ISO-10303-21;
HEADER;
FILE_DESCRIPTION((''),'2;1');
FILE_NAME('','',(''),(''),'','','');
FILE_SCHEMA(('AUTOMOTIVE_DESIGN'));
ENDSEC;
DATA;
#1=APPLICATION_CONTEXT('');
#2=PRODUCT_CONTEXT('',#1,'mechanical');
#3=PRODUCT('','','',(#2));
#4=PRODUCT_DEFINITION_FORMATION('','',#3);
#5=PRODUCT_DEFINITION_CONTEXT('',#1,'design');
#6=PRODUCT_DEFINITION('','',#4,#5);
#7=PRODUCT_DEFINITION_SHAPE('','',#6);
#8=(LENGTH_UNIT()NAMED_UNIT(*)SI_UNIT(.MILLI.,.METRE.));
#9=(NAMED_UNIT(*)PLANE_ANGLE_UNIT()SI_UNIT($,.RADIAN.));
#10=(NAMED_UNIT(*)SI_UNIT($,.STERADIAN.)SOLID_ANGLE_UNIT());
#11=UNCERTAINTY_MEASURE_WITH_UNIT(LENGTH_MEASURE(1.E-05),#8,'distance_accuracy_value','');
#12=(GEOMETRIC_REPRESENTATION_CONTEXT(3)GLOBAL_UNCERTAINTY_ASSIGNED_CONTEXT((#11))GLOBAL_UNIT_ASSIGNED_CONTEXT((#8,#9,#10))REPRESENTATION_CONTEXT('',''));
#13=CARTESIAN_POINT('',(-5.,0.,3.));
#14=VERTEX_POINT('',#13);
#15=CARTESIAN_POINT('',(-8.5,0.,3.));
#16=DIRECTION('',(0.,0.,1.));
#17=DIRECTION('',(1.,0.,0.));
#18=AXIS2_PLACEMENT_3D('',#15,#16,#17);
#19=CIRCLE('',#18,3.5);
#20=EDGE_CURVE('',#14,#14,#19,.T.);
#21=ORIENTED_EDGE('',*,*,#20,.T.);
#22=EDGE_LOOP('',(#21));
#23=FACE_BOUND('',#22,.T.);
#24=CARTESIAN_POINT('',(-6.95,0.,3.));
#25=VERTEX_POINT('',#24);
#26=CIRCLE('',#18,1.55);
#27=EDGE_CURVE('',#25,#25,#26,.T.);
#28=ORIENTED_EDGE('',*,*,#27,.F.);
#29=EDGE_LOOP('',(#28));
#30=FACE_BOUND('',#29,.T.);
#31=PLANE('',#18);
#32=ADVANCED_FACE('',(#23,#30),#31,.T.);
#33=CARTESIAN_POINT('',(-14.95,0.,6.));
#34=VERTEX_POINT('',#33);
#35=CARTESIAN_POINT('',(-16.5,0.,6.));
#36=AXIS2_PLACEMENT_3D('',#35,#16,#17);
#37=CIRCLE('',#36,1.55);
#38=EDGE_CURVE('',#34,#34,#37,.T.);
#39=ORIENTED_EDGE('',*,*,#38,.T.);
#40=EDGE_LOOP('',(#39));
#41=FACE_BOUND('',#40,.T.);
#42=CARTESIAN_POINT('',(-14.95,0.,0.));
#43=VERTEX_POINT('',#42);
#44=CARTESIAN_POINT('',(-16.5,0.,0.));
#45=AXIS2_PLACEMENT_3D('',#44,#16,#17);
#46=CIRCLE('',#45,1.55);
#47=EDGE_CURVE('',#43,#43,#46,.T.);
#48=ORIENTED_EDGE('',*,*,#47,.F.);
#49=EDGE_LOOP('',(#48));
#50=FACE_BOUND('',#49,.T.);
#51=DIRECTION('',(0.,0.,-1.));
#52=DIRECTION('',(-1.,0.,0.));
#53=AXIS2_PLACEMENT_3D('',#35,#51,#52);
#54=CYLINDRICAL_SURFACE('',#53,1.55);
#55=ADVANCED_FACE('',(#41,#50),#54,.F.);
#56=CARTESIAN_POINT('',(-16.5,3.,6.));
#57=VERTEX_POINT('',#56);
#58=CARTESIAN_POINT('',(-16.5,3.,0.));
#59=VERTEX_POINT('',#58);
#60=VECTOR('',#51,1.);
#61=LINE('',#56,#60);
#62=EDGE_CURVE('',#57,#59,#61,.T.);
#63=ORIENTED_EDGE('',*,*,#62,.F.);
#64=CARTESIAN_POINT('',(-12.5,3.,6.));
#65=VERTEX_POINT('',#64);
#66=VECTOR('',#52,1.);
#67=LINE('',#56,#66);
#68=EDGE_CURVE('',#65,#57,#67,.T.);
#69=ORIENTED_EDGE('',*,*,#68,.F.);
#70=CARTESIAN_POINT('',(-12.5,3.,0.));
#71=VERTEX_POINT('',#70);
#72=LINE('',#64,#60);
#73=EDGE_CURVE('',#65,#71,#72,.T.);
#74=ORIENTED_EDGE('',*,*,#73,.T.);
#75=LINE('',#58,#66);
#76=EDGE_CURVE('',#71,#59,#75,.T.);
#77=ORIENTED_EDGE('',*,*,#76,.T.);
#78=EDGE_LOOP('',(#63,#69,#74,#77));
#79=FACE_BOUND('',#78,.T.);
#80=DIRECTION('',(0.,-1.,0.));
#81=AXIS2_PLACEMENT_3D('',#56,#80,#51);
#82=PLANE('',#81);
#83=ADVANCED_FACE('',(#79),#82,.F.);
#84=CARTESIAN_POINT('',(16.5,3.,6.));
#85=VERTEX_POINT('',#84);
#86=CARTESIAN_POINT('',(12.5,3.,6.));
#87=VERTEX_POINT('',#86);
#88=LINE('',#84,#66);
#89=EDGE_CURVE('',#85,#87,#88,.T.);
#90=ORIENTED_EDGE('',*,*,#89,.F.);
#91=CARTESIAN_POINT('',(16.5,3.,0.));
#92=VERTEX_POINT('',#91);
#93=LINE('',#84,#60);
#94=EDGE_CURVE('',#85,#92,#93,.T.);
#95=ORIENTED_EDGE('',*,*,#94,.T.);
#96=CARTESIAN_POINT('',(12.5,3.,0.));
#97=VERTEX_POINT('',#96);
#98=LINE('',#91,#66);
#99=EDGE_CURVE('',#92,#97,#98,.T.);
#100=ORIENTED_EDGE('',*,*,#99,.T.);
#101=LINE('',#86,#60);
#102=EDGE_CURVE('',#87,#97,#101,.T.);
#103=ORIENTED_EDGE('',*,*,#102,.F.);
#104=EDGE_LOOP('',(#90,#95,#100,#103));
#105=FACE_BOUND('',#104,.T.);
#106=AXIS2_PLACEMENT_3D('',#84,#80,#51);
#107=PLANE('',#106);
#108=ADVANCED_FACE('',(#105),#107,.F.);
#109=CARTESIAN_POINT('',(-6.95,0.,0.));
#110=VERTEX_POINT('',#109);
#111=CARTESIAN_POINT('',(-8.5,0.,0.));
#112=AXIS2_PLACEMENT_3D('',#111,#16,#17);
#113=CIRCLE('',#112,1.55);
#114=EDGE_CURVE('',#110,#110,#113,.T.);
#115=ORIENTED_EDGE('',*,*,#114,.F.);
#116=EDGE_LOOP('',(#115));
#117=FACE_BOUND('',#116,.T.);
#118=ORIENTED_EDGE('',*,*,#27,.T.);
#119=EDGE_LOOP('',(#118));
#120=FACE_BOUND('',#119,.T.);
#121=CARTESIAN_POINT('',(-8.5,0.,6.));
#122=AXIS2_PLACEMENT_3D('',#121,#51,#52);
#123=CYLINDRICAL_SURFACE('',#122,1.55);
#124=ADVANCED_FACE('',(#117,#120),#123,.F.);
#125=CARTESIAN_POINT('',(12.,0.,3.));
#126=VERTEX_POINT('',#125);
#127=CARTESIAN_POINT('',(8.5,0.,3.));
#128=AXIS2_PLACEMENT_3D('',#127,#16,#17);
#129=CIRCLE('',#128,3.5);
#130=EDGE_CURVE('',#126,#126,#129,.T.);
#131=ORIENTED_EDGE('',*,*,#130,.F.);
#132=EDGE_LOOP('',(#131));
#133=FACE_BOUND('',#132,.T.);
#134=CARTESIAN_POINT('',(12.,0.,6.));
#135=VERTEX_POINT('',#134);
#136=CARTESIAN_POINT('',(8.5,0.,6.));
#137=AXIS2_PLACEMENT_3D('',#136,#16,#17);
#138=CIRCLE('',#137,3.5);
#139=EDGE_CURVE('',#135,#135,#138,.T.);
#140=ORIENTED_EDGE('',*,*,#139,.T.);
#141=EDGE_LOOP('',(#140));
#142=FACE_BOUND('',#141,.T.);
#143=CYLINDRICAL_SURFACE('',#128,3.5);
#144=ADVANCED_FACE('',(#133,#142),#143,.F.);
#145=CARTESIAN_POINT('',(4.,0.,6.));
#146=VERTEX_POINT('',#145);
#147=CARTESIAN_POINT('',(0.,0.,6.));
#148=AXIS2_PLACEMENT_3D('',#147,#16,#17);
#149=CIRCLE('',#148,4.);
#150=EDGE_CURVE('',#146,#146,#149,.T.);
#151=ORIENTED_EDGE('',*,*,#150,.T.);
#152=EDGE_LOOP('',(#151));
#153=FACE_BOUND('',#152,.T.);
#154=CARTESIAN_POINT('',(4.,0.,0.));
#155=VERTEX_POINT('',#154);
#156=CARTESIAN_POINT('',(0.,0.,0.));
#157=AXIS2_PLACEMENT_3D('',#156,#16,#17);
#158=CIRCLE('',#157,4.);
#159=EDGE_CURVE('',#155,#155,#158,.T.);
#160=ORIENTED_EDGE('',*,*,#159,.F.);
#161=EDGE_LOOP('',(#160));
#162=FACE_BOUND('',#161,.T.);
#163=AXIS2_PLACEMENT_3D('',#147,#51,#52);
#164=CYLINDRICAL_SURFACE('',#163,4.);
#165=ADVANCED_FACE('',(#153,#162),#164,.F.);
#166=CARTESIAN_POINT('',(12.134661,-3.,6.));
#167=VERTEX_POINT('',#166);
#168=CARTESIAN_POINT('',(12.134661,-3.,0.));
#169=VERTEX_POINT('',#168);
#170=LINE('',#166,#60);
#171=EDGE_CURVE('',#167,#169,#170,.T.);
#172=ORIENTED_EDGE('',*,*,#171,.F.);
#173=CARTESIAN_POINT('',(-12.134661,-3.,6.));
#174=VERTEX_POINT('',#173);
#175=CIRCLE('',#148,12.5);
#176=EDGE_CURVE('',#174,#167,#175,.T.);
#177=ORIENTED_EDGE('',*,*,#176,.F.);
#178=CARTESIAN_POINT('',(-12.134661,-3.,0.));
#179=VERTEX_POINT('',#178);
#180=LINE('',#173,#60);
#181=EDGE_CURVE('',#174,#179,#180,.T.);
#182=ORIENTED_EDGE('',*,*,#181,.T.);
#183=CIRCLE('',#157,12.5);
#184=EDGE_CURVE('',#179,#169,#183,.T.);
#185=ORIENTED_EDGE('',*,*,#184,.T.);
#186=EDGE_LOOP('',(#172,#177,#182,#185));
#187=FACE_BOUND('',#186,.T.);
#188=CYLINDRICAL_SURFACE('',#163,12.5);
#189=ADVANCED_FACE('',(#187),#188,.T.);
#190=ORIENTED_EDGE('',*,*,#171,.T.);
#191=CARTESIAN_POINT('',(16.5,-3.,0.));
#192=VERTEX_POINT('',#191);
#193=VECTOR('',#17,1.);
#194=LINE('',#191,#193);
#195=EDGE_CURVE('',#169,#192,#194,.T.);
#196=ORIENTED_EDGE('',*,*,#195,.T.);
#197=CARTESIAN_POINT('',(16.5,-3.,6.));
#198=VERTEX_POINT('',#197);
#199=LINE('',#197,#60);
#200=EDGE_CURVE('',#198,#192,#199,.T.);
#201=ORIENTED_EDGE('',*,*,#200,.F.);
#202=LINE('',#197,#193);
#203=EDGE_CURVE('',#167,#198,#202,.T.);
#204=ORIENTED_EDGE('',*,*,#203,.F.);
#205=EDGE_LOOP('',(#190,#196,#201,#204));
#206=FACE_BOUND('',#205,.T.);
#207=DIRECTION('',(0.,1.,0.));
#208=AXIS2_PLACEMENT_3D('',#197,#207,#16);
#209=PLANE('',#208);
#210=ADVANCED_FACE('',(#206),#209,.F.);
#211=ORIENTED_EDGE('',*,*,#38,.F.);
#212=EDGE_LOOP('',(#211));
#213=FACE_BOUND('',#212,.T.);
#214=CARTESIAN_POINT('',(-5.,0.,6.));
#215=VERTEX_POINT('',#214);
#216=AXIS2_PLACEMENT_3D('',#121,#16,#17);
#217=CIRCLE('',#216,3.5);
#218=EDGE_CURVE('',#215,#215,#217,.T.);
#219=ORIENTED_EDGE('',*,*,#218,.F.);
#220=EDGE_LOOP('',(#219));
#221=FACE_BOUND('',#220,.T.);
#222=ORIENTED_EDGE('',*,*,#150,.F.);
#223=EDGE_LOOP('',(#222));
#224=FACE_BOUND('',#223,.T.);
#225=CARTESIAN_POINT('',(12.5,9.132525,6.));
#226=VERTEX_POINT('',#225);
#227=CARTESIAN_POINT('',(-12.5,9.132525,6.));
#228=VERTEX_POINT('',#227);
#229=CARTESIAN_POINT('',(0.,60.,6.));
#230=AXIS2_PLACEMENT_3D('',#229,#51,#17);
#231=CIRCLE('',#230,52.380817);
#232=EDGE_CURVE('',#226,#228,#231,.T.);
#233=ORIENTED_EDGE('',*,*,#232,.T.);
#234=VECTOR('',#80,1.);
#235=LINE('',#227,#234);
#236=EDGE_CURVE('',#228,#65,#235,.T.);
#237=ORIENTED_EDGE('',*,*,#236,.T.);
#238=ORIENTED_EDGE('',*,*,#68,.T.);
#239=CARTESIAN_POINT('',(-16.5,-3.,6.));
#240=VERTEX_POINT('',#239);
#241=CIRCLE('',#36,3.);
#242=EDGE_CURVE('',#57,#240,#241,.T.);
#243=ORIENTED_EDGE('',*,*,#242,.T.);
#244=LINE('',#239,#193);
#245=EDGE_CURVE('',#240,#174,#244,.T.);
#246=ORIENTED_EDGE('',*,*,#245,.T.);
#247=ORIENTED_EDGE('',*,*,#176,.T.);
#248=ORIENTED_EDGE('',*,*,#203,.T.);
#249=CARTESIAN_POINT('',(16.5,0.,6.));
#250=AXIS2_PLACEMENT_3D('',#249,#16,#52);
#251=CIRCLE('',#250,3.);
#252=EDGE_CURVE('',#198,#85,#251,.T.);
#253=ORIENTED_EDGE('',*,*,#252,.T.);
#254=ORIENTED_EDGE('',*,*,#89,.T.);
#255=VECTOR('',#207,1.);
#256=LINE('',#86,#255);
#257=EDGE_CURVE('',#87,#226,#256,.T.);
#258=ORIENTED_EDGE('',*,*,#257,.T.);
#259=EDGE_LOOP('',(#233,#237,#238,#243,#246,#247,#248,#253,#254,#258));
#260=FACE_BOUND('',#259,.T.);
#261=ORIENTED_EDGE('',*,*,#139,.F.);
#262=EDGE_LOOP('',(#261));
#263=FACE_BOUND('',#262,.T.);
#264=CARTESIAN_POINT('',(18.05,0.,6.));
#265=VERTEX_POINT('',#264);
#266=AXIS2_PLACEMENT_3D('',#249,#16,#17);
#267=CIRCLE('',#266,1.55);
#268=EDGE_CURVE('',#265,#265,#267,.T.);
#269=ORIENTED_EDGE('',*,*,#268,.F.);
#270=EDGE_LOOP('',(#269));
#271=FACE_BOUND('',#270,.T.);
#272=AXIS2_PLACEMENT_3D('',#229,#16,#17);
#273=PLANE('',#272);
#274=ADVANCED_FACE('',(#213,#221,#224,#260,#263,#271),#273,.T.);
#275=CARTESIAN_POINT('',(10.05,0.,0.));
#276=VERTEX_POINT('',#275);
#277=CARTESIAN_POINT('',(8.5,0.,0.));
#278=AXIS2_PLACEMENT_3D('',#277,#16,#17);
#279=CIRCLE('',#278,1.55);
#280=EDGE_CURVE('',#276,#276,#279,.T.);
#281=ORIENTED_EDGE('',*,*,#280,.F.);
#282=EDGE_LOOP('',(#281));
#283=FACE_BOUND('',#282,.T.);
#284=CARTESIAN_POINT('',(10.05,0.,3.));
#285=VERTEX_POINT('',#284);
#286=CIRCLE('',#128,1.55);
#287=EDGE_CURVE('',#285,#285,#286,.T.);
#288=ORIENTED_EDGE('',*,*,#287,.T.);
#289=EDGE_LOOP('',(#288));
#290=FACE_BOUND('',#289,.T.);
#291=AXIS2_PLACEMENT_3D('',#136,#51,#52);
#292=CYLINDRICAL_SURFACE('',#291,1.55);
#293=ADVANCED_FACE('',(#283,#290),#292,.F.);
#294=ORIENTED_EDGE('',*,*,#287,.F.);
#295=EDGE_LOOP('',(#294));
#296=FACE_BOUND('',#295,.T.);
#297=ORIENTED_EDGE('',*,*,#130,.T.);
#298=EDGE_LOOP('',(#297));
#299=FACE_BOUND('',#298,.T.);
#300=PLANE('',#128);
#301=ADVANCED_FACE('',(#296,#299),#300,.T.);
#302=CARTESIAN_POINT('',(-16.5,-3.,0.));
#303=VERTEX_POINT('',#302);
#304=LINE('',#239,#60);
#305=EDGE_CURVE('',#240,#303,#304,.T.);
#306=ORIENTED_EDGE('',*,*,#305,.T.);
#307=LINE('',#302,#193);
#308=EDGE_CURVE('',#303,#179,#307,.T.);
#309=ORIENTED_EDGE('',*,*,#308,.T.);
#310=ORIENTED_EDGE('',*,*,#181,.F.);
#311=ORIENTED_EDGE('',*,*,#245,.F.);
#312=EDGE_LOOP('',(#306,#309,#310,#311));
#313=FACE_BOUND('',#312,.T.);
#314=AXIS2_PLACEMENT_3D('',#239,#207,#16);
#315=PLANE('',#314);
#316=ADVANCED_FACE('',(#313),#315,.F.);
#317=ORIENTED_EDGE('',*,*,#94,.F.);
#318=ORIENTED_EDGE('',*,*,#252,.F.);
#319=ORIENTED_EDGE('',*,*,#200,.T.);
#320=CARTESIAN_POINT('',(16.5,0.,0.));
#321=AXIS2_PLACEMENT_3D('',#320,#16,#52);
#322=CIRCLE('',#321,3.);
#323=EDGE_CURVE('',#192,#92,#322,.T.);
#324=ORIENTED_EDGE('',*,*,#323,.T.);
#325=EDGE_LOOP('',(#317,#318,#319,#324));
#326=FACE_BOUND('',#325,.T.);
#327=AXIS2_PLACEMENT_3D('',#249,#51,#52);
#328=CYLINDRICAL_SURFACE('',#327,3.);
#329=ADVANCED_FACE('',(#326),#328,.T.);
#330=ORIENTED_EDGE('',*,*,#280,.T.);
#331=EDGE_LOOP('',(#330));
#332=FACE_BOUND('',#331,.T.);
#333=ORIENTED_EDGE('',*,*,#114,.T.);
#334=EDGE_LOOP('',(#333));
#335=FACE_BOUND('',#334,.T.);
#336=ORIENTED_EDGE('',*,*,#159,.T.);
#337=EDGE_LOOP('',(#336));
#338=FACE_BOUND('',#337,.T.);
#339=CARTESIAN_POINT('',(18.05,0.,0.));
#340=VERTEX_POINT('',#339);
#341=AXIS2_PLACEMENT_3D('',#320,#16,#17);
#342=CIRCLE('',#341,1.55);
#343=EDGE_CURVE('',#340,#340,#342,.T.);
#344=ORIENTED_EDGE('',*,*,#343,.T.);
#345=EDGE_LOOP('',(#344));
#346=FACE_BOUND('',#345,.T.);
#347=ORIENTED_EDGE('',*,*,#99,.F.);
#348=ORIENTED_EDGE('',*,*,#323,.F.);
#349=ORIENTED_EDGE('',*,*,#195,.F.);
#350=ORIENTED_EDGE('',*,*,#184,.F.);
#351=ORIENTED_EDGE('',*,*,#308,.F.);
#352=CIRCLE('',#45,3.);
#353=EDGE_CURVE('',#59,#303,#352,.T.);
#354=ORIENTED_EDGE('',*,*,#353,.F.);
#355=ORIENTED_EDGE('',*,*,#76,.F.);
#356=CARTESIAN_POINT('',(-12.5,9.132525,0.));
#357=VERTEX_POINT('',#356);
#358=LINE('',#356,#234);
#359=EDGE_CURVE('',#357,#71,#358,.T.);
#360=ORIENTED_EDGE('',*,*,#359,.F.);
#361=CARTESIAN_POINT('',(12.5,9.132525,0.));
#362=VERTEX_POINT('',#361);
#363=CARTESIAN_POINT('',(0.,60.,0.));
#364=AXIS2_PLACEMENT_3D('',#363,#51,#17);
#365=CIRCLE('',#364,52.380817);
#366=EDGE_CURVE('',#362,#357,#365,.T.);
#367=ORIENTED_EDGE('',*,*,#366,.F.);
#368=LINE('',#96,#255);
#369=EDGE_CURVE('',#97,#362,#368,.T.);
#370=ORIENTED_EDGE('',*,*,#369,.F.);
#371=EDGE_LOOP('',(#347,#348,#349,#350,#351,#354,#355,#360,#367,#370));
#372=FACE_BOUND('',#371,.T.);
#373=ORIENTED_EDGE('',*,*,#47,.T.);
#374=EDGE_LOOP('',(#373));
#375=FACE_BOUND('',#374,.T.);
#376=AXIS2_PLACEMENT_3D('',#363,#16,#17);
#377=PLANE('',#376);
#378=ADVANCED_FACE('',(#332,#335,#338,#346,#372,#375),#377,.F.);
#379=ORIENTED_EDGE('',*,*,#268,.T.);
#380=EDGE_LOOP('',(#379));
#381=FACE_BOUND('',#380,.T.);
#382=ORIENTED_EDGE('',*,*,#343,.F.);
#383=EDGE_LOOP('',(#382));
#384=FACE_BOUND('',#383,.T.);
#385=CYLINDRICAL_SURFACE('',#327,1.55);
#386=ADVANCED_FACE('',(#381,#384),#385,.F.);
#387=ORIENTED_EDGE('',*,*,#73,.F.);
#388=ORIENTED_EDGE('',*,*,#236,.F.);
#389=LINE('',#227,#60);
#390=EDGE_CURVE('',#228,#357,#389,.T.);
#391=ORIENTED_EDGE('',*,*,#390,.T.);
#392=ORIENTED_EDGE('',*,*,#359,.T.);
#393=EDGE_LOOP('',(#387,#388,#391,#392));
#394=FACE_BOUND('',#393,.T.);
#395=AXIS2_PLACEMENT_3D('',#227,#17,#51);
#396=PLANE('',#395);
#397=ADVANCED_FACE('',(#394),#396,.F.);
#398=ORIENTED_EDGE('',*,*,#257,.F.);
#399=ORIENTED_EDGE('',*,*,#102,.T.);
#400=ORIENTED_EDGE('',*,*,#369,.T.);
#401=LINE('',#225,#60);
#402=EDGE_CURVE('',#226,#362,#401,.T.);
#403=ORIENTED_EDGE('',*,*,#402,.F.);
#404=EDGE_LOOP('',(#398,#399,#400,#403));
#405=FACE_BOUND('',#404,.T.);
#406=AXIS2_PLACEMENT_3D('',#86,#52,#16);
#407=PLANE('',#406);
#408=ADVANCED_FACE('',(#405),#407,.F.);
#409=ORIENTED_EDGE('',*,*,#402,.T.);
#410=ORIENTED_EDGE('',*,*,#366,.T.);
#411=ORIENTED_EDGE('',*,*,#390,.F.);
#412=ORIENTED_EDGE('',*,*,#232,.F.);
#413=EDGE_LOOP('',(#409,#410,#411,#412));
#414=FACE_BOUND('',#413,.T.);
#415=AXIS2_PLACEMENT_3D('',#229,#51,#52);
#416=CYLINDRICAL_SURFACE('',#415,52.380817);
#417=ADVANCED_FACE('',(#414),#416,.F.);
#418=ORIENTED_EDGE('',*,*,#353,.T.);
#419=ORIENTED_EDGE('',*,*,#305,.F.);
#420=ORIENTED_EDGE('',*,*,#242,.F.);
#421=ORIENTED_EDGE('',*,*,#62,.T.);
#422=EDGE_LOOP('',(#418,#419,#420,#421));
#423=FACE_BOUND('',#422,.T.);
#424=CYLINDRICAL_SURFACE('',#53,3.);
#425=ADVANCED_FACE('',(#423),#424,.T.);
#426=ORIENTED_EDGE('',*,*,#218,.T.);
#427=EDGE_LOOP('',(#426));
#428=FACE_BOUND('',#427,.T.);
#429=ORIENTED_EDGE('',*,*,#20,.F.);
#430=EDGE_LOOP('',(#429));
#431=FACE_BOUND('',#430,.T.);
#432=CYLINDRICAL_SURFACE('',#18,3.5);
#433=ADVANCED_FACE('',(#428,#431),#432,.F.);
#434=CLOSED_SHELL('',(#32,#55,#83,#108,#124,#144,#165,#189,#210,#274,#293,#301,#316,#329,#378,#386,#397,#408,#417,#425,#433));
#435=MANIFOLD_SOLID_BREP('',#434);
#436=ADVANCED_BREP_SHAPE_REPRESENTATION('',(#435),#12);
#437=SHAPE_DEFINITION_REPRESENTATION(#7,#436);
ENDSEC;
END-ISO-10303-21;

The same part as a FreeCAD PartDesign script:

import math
import FreeCAD as App
import Part
import Sketcher
Q = App.Units.Quantity

doc = App.newDocument("Part")
body = doc.addObject("PartDesign::Body", "Body")

# Sketch on XY plane
sketch1 = doc.addObject("Sketcher::SketchObject", "Sketch")
body.addObject(sketch1)
sketch1.AttachmentSupport = (doc.XY_Plane, [""])
sketch1.MapMode = "FlatFace"
sketch1.addGeometry(Part.LineSegment(App.Vector(-12.5, 3, 0), App.Vector(-16.5, 3, 0)), False)
sketch1.addGeometry(Part.ArcOfCircle(Part.Circle(App.Vector(-16.5, 0, 0), App.Vector(0, 0, 1), 3), math.radians(90), math.radians(270)), False)
sketch1.addGeometry(Part.LineSegment(App.Vector(-16.5, -3, 0), App.Vector(-12.1, -3, 0)), False)
sketch1.addGeometry(Part.ArcOfCircle(Part.Circle(App.Vector(0, 0, 0), App.Vector(0, 0, 1), 12.5), math.radians(-166), math.radians(-14)), False)
sketch1.addGeometry(Part.LineSegment(App.Vector(12.1, -3, 0), App.Vector(16.5, -3, 0)), False)
sketch1.addGeometry(Part.ArcOfCircle(Part.Circle(App.Vector(16.5, 0, 0), App.Vector(0, 0, 1), 3), math.radians(-90), math.radians(90)), False)
sketch1.addGeometry(Part.LineSegment(App.Vector(16.5, 3, 0), App.Vector(12.5, 3, 0)), False)
sketch1.addGeometry(Part.LineSegment(App.Vector(12.5, 3, 0), App.Vector(12.5, 9.1, 0)), False)
sketch1.addGeometry(Part.ArcOfCircle(Part.Circle(App.Vector(0, 60, 0), App.Vector(0, 0, 1), 52.4), math.radians(-104), math.radians(-76)), False)
sketch1.addGeometry(Part.LineSegment(App.Vector(-12.5, 9.1, 0), App.Vector(-12.5, 3, 0)), False)
sketch1.addGeometry(Part.Circle(App.Vector(16.5, 0, 0), App.Vector(0, 0, 1), 1.6), False)
sketch1.addGeometry(Part.Circle(App.Vector(8.5, 0, 0), App.Vector(0, 0, 1), 1.6), False)
sketch1.addGeometry(Part.Circle(App.Vector(0, 0, 0), App.Vector(0, 0, 1), 4), False)
sketch1.addGeometry(Part.Circle(App.Vector(-8.5, 0, 0), App.Vector(0, 0, 1), 1.6), False)
sketch1.addGeometry(Part.Circle(App.Vector(-16.5, 0, 0), App.Vector(0, 0, 1), 1.6), False)
sketch1.addConstraint(Sketcher.Constraint("Tangent", 0, 2, 1, 1))
sketch1.addConstraint(Sketcher.Constraint("Tangent", 1, 2, 2, 1))
sketch1.addConstraint(Sketcher.Constraint("Coincident", 2, 2, 3, 1))
sketch1.addConstraint(Sketcher.Constraint("Coincident", 3, 2, 4, 1))
sketch1.addConstraint(Sketcher.Constraint("Tangent", 4, 2, 5, 1))
sketch1.addConstraint(Sketcher.Constraint("Tangent", 5, 2, 6, 1))
sketch1.addConstraint(Sketcher.Constraint("Coincident", 6, 2, 7, 1))
sketch1.addConstraint(Sketcher.Constraint("Coincident", 7, 2, 8, 2))
sketch1.addConstraint(Sketcher.Constraint("Coincident", 8, 1, 9, 1))
sketch1.addConstraint(Sketcher.Constraint("Coincident", 9, 2, 0, 1))
sketch1.addConstraint(Sketcher.Constraint("Horizontal", 0))
sketch1.addConstraint(Sketcher.Constraint("Horizontal", 2))
sketch1.addConstraint(Sketcher.Constraint("Horizontal", 4))
sketch1.addConstraint(Sketcher.Constraint("Horizontal", 6))
sketch1.addConstraint(Sketcher.Constraint("Vertical", 7))
sketch1.addConstraint(Sketcher.Constraint("Vertical", 9))
sketch1.addConstraint(Sketcher.Constraint("Coincident", 3, 3, -1, 1))
sketch1.addConstraint(Sketcher.Constraint("Coincident", 12, 3, -1, 1))
sketch1.addConstraint(Sketcher.Constraint("Coincident", 10, 3, 5, 3))
sketch1.addConstraint(Sketcher.Constraint("Coincident", 14, 3, 1, 3))
sketch1.addConstraint(Sketcher.Constraint("Equal", 1, 5))
sketch1.addConstraint(Sketcher.Constraint("Equal", 10, 11))
sketch1.addConstraint(Sketcher.Constraint("Equal", 11, 13))
sketch1.addConstraint(Sketcher.Constraint("Equal", 13, 14))
sketch1.addConstraint(Sketcher.Constraint("Symmetric", 1, 3, 5, 3, -1, 1))
sketch1.addConstraint(Sketcher.Constraint("Symmetric", 11, 3, 13, 3, -1, 1))
sketch1.addConstraint(Sketcher.Constraint("Symmetric", 7, 2, 8, 1, -2))
sketch1.addConstraint(Sketcher.Constraint("PointOnObject", 1, 3, -1))
sketch1.addConstraint(Sketcher.Constraint("PointOnObject", 11, 3, -1))
sketch1.addConstraint(Sketcher.Constraint("Diameter", 12, Q("8 mm")))
sketch1.addConstraint(Sketcher.Constraint("Radius", 1, Q("3 mm")))
sketch1.addConstraint(Sketcher.Constraint("Diameter", 10, Q("3.1 mm")))
sketch1.addConstraint(Sketcher.Constraint("Radius", 3, Q("12.5 mm")))
sketch1.addConstraint(Sketcher.Constraint("DistanceX", 0, 2, 0, 1, Q("4 mm")))
sketch1.addConstraint(Sketcher.Constraint("DistanceY", -1, 1, 8, 3, Q("60 mm")))
sketch1.addConstraint(Sketcher.Constraint("DistanceX", 1, 3, 5, 3, Q("33 mm")))
sketch1.addConstraint(Sketcher.Constraint("DistanceX", 11, 3, 5, 3, Q("8 mm")))
sketch1.addConstraint(Sketcher.Constraint("Radius", 8, Q("52.380817 mm")))
pad1 = doc.addObject("PartDesign::Pad", "Pad")
body.addObject(pad1)
pad1.Profile = sketch1
pad1.Length = 6

# Sketch on XY plane
sketch2 = doc.addObject("Sketcher::SketchObject", "Sketch001")
body.addObject(sketch2)
sketch2.AttachmentSupport = (doc.XY_Plane, [""])
sketch2.MapMode = "FlatFace"
sketch2.AttachmentOffset = App.Placement(App.Vector(0, 0, 6), App.Rotation())
sketch2.addGeometry(Part.Circle(App.Vector(-8.5, 0, 0), App.Vector(0, 0, 1), 3.5), False)
sketch2.addGeometry(Part.Circle(App.Vector(8.5, 0, 0), App.Vector(0, 0, 1), 3.5), False)
sketch2.addConstraint(Sketcher.Constraint("Equal", 0, 1))
sketch2.addConstraint(Sketcher.Constraint("Symmetric", 0, 3, 1, 3, -1, 1))
sketch2.addConstraint(Sketcher.Constraint("PointOnObject", 0, 3, -1))
sketch2.addConstraint(Sketcher.Constraint("Diameter", 0, Q("7 mm")))
sketch2.addConstraint(Sketcher.Constraint("DistanceX", 0, 3, 1, 3, Q("17 mm")))
pocket1 = doc.addObject("PartDesign::Pocket", "Pocket")
body.addObject(pocket1)
pocket1.Profile = sketch2
pocket1.Length = 3

doc.recompute()
